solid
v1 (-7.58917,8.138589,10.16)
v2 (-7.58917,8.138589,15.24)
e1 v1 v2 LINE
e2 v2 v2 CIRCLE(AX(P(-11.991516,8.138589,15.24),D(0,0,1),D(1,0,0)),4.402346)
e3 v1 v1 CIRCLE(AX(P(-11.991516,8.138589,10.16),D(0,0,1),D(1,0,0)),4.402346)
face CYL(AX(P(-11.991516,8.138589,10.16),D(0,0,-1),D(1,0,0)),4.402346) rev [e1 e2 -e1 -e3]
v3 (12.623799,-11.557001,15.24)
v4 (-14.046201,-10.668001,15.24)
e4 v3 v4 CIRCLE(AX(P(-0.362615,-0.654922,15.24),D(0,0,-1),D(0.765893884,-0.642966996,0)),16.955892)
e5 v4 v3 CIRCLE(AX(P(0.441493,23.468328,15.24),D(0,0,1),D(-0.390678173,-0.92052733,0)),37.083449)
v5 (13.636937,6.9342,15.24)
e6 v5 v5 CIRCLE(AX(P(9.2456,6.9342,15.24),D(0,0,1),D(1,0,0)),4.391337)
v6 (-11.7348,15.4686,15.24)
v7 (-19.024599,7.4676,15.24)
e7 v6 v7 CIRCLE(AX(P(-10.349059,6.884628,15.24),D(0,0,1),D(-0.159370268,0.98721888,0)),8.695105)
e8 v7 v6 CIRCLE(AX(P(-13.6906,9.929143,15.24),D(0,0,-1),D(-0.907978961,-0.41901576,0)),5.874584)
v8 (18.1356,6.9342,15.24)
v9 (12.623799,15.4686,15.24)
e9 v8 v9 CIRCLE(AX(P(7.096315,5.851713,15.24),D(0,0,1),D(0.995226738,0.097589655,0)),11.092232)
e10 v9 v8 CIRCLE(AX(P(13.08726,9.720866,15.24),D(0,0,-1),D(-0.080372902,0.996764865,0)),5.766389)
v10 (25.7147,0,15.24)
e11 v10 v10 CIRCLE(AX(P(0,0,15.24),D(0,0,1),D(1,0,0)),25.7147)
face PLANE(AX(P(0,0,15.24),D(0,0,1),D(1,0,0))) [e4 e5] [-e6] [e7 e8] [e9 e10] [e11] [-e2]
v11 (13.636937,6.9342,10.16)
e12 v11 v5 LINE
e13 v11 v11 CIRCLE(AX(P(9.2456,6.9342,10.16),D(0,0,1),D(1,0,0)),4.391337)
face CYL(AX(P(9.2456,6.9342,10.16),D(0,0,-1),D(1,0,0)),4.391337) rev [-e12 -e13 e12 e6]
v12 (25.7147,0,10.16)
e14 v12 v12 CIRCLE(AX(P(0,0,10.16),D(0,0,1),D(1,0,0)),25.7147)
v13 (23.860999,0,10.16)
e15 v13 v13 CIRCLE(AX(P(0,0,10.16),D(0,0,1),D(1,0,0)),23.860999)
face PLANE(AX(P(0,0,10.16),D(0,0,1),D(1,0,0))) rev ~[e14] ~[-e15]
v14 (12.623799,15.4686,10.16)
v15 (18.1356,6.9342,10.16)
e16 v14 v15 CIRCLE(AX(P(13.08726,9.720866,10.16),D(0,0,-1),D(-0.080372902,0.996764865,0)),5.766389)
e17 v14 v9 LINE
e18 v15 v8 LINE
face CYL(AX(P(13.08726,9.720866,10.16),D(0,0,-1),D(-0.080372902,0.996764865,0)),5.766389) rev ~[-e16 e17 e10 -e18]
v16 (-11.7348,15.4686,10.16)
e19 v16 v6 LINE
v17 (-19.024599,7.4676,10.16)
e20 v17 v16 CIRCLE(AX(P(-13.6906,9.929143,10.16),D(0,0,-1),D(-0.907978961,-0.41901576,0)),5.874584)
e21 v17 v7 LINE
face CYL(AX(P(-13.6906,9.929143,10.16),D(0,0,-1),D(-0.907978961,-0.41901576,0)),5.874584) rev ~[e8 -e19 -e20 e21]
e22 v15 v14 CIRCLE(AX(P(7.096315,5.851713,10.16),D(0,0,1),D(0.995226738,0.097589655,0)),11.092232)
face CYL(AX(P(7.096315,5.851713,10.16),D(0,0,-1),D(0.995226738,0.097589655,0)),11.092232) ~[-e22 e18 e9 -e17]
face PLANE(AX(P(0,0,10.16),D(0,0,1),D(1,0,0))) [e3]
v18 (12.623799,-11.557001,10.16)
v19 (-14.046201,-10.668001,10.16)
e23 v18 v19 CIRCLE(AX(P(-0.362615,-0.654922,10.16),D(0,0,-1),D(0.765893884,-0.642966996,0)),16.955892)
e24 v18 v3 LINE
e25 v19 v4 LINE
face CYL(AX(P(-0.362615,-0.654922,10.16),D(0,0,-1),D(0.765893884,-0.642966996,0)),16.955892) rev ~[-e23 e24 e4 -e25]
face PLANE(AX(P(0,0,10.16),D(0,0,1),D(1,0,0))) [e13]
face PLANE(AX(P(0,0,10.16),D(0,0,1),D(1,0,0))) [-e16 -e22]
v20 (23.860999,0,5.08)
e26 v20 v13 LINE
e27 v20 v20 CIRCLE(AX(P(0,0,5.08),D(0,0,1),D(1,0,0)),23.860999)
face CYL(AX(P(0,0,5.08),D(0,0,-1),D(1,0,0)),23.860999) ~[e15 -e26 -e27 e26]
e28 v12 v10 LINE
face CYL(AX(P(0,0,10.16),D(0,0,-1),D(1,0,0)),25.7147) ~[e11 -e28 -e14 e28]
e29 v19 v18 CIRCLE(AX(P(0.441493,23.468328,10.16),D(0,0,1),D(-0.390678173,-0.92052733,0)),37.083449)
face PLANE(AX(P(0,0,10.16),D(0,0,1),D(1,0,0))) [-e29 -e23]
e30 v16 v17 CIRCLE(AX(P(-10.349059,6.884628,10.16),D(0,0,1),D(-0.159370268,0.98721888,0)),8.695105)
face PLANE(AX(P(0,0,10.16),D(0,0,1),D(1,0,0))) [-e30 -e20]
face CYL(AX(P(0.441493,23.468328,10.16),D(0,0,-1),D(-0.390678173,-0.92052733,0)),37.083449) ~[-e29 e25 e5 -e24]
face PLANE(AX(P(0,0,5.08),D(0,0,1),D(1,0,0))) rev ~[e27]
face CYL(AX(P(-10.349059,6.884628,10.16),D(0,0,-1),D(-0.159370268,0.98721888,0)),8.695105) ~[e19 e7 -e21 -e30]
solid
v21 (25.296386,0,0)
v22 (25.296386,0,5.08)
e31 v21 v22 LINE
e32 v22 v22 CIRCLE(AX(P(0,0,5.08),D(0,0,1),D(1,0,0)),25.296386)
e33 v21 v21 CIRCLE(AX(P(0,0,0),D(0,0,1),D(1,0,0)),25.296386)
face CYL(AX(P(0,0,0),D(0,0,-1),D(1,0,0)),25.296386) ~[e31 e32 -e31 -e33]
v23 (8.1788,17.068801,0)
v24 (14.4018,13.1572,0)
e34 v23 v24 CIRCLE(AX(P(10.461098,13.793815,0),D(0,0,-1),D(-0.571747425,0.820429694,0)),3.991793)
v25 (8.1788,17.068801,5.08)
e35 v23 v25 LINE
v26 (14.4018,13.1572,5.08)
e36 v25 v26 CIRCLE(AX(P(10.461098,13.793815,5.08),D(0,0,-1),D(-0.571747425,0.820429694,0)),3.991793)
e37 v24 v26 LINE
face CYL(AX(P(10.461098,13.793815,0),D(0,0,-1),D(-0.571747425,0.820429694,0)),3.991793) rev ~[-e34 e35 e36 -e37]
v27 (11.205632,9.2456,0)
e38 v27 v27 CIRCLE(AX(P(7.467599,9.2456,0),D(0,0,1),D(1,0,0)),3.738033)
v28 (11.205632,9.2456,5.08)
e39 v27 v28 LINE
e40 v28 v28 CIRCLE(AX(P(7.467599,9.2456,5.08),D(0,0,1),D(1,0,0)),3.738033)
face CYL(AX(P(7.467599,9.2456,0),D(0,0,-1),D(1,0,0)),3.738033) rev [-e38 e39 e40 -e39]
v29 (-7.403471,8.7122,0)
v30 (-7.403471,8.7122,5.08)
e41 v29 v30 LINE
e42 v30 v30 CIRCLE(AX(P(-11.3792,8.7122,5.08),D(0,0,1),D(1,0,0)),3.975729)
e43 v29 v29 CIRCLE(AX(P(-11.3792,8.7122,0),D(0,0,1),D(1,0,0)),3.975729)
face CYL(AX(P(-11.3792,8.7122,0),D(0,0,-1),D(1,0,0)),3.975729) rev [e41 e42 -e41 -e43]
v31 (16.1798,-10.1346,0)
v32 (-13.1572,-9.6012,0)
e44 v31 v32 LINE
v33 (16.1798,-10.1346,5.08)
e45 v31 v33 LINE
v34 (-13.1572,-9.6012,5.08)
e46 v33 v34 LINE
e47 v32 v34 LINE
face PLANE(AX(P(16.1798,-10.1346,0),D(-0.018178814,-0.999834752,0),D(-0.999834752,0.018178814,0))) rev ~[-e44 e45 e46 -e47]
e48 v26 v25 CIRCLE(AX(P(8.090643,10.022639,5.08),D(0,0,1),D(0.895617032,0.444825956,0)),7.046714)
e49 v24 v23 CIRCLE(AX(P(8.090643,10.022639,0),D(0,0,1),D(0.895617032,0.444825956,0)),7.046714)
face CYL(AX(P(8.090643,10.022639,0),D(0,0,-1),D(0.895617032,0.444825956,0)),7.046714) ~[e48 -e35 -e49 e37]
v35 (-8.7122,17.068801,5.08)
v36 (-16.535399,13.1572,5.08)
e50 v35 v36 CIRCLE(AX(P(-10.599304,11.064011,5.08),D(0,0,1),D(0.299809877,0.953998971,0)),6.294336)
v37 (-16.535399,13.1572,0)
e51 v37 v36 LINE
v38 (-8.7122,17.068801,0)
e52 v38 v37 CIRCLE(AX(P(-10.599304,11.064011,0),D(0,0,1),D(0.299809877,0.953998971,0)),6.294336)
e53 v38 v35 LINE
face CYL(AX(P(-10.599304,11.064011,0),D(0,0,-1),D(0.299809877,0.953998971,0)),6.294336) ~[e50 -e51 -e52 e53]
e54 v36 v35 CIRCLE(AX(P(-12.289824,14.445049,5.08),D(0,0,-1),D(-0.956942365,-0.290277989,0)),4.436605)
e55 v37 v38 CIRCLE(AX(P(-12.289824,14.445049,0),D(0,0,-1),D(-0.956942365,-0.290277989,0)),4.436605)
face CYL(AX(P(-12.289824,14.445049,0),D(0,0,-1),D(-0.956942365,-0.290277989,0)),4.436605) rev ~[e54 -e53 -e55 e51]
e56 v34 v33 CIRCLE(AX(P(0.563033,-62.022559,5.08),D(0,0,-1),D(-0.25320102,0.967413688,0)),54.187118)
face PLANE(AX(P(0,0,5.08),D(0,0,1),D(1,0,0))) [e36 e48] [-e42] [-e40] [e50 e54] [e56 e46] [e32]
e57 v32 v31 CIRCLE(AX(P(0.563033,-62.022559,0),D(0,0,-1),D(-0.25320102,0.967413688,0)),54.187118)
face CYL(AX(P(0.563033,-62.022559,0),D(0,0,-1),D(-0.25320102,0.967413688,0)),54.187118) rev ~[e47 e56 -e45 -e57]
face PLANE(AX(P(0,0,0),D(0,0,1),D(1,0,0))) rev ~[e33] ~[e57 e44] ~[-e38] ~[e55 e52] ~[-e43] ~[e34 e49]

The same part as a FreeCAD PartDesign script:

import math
import FreeCAD as App
import Part
import Sketcher

V = App.Vector
Q = App.Units.Quantity

doc = App.newDocument("Part")
body = doc.addObject("PartDesign::Body", "Body")

# Sketch on XY plane
sketch1 = doc.addObject("Sketcher::SketchObject", "Sketch")
body.addObject(sketch1)
sketch1.AttachmentSupport = (doc.XY_Plane, [""])
sketch1.MapMode = "FlatFace"
sketch1.addGeometry([
    Part.Circle(V(0, 0, 0), V(0, 0, 1), 25.3),  # 0
    Part.LineSegment(V(16.2, -10.1, 0), V(-13.2, -9.6, 0)),  # 1
    Part.ArcOfCircle(Part.Circle(V(0.6, -62, 0), V(0, 0, 1), 54.2), math.radians(73), math.radians(105)),  # 2
    Part.Circle(V(-11.4, 8.7, 0), V(0, 0, 1), 4),  # 3
    Part.ArcOfCircle(Part.Circle(V(-10.6, 11.1, 0), V(0, 0, 1), 6.3), math.radians(73), math.radians(161)),  # 4
    Part.ArcOfCircle(Part.Circle(V(-12.3, 14.4, 0), V(0, 0, 1), 4.4), math.radians(36), math.radians(197)),  # 5
    Part.Circle(V(7.5, 9.2, 0), V(0, 0, 1), 3.7),  # 6
    Part.ArcOfCircle(Part.Circle(V(8.1, 10, 0), V(0, 0, 1), 7), math.radians(26), math.radians(89)),  # 7
    Part.ArcOfCircle(Part.Circle(V(10.5, 13.8, 0), V(0, 0, 1), 4), math.radians(-9), math.radians(125)),  # 8
], False)
sketch1.addConstraint([
    Sketcher.Constraint("Coincident", 1, 1, 2, 1),
    Sketcher.Constraint("Coincident", 2, 2, 1, 2),
    Sketcher.Constraint("Coincident", 4, 1, 5, 1),
    Sketcher.Constraint("Coincident", 5, 2, 4, 2),
    Sketcher.Constraint("Coincident", 7, 1, 8, 1),
    Sketcher.Constraint("Coincident", 8, 2, 7, 2),
    Sketcher.Constraint("Coincident", 0, 3, -1, 1),
    Sketcher.Constraint("Horizontal", 5, 2, 7, 1),
    Sketcher.Constraint("Horizontal", 4, 1, 8, 2),
    Sketcher.Constraint("DistanceX", 2, 2, 3, 3, Q("0.07 in")),
    Sketcher.Constraint("DistanceX", 7, 1, 1, 1, Q("0.07 in")),
    Sketcher.Constraint("Diameter", 0, Q("50.592772 mm")),
    Sketcher.Constraint("DistanceX", 3, 3, -1, 1, Q("0.448 in")),
    Sketcher.Constraint("DistanceY", -1, 1, 3, 3, Q("0.343 in")),
    Sketcher.Constraint("DistanceX", -1, 1, 6, 3, Q("0.294 in")),
    Sketcher.Constraint("DistanceY", -1, 1, 6, 3, Q("0.364 in")),
    Sketcher.Constraint("DistanceX", -1, 1, 1, 1, Q("0.637 in")),
    Sketcher.Constraint("DistanceY", 1, 1, -1, 1, Q("0.399 in")),
    Sketcher.Constraint("DistanceY", 2, 2, -1, 1, Q("0.378 in")),
    Sketcher.Constraint("DistanceX", 4, 1, -1, 1, Q("0.343 in")),
    Sketcher.Constraint("DistanceY", -1, 1, 4, 1, Q("0.672 in")),
    Sketcher.Constraint("DistanceX", 5, 2, -1, 1, Q("0.651 in")),
    Sketcher.Constraint("DistanceY", -1, 1, 5, 2, Q("0.518 in")),
    Sketcher.Constraint("DistanceX", -1, 1, 8, 2, Q("0.322 in")),
    Sketcher.Constraint("Diameter", 3, Q("7.951458 mm")),
    Sketcher.Constraint("Diameter", 6, Q("7.476066 mm")),
    Sketcher.Constraint("Radius", 2, Q("54.187118 mm")),
    Sketcher.Constraint("Radius", 4, Q("6.294336 mm")),
    Sketcher.Constraint("Radius", 5, Q("4.436605 mm")),
    Sketcher.Constraint("Radius", 7, Q("7.046714 mm")),
    Sketcher.Constraint("Radius", 8, Q("3.991793 mm")),
])
pad1 = doc.addObject("PartDesign::Pad", "Pad")
body.addObject(pad1)
pad1.Profile = sketch1
pad1.Length = Q("0.2 in")
body2 = doc.addObject("PartDesign::Body", "Body001")

# Sketch on XY plane
sketch2 = doc.addObject("Sketcher::SketchObject", "Sketch001")
body2.addObject(sketch2)
sketch2.AttachmentSupport = (doc.getObject("XY_Plane001"), [""])
sketch2.MapMode = "FlatFace"
sketch2.AttachmentOffset = App.Placement(V(0, 0, 0.2 * 25.4), App.Rotation())
sketch2.addGeometry(Part.Circle(V(0, 0, 0), V(0, 0, 1), 24), False)
sketch2.addConstraint([
    Sketcher.Constraint("Coincident", 0, 3, -1, 1),
    Sketcher.Constraint("Diameter", 0, Q("47.721998 mm")),
])
pad2 = doc.addObject("PartDesign::Pad", "Pad001")
body2.addObject(pad2)
pad2.Profile = sketch2
pad2.Length = Q("0.2 in")

# Sketch on XY plane
sketch3 = doc.addObject("Sketcher::SketchObject", "Sketch002")
body2.addObject(sketch3)
sketch3.AttachmentSupport = (doc.getObject("XY_Plane001"), [""])
sketch3.MapMode = "FlatFace"
sketch3.AttachmentOffset = App.Placement(V(0, 0, 0.4 * 25.4), App.Rotation())
sketch3.addGeometry([
    Part.Circle(V(0, 0, 0), V(0, 0, 1), 25.7),  # 0
    Part.ArcOfCircle(Part.Circle(V(0.4, 23.5, 0), V(0, 0, 1), 37.1), math.radians(-113), math.radians(-71)),  # 1
    Part.ArcOfCircle(Part.Circle(V(-0.4, -0.7, 0), V(0, 0, 1), 17), math.radians(-144), math.radians(-40)),  # 2
    Part.Circle(V(-12, 8.1, 0), V(0, 0, 1), 4.4),  # 3
    Part.ArcOfCircle(Part.Circle(V(-10.3, 6.9, 0), V(0, 0, 1), 8.7), math.radians(99), math.radians(176)),  # 4
    Part.ArcOfCircle(Part.Circle(V(-13.7, 9.9, 0), V(0, 0, 1), 5.9), math.radians(71), math.radians(205)),  # 5
    Part.Circle(V(9.2, 6.9, 0), V(0, 0, 1), 4.4),  # 6
    Part.ArcOfCircle(Part.Circle(V(7.1, 5.9, 0), V(0, 0, 1), 11.1), math.radians(6), math.radians(60)),  # 7
    Part.ArcOfCircle(Part.Circle(V(13.1, 9.7, 0), V(0, 0, 1), 5.8), math.radians(-29), math.radians(95)),  # 8
], False)
sketch3.addConstraint([
    Sketcher.Constraint("Coincident", 1, 1, 2, 1),
    Sketcher.Constraint("Coincident", 2, 2, 1, 2),
    Sketcher.Constraint("Coincident", 4, 1, 5, 1),
    Sketcher.Constraint("Coincident", 5, 2, 4, 2),
    Sketcher.Constraint("Coincident", 7, 1, 8, 1),
    Sketcher.Constraint("Coincident", 8, 2, 7, 2),
    Sketcher.Constraint("Coincident", 0, 3, -1, 1),
    Sketcher.Constraint("Horizontal", 6, 3, 7, 1),
    Sketcher.Constraint("Horizontal", 4, 1, 8, 2),
    Sketcher.Constraint("Vertical", 2, 2, 8, 2),
    Sketcher.Constraint("Diameter", 0, Q("51.4294 mm")),
    Sketcher.Constraint("DistanceY", 1, 1, -1, 1, Q("0.42 in")),
    Sketcher.Constraint("DistanceX", 5, 2, 5, 3, Q("0.2099999 in")),
    Sketcher.Constraint("DistanceX", 6, 3, 7, 1, Q("0.35 in")),
    Sketcher.Constraint("Diameter", 3, Q("8.804692 mm")),
    Sketcher.Constraint("DistanceX", 5, 3, -1, 1, Q("0.539 in")),
    Sketcher.Constraint("DistanceX", -1, 1, 6, 3, Q("0.364 in")),
    Sketcher.Constraint("DistanceY", -1, 1, 6, 3, Q("0.273 in")),
    Sketcher.Constraint("DistanceX", 1, 1, -1, 1, Q("0.553 in")),
    Sketcher.Constraint("DistanceX", -1, 1, 2, 2, Q("0.497 in")),
    Sketcher.Constraint("DistanceY", 2, 2, -1, 1, Q("0.455 in")),
    Sketcher.Constraint("DistanceX", 4, 1, -1, 1, Q("0.462 in")),
    Sketcher.Constraint("DistanceY", -1, 1, 4, 1, Q("0.609 in")),
    Sketcher.Constraint("DistanceY", -1, 1, 5, 2, Q("0.294 in")),
    Sketcher.Constraint("Radius", 1, Q("37.083449 mm")),
    Sketcher.Constraint("Radius", 7, Q("11.092232 mm")),
    Sketcher.Constraint("Radius", 8, Q("5.766389 mm")),
    Sketcher.Constraint("Diameter", 6, Q("8.782674 mm")),
    Sketcher.Constraint("Radius", 2, Q("16.955892 mm")),
    Sketcher.Constraint("Radius", 4, Q("8.695105 mm")),
    Sketcher.Constraint("DistanceX", 3, 3, 2, 3, Q("11.628901 mm")),
    Sketcher.Constraint("DistanceY", -1, 1, 3, 3, Q("8.138589 mm")),
])
pad3 = doc.addObject("PartDesign::Pad", "Pad002")
body2.addObject(pad3)
pad3.Profile = sketch3
pad3.Length = Q("0.2 in")

doc.recompute()
